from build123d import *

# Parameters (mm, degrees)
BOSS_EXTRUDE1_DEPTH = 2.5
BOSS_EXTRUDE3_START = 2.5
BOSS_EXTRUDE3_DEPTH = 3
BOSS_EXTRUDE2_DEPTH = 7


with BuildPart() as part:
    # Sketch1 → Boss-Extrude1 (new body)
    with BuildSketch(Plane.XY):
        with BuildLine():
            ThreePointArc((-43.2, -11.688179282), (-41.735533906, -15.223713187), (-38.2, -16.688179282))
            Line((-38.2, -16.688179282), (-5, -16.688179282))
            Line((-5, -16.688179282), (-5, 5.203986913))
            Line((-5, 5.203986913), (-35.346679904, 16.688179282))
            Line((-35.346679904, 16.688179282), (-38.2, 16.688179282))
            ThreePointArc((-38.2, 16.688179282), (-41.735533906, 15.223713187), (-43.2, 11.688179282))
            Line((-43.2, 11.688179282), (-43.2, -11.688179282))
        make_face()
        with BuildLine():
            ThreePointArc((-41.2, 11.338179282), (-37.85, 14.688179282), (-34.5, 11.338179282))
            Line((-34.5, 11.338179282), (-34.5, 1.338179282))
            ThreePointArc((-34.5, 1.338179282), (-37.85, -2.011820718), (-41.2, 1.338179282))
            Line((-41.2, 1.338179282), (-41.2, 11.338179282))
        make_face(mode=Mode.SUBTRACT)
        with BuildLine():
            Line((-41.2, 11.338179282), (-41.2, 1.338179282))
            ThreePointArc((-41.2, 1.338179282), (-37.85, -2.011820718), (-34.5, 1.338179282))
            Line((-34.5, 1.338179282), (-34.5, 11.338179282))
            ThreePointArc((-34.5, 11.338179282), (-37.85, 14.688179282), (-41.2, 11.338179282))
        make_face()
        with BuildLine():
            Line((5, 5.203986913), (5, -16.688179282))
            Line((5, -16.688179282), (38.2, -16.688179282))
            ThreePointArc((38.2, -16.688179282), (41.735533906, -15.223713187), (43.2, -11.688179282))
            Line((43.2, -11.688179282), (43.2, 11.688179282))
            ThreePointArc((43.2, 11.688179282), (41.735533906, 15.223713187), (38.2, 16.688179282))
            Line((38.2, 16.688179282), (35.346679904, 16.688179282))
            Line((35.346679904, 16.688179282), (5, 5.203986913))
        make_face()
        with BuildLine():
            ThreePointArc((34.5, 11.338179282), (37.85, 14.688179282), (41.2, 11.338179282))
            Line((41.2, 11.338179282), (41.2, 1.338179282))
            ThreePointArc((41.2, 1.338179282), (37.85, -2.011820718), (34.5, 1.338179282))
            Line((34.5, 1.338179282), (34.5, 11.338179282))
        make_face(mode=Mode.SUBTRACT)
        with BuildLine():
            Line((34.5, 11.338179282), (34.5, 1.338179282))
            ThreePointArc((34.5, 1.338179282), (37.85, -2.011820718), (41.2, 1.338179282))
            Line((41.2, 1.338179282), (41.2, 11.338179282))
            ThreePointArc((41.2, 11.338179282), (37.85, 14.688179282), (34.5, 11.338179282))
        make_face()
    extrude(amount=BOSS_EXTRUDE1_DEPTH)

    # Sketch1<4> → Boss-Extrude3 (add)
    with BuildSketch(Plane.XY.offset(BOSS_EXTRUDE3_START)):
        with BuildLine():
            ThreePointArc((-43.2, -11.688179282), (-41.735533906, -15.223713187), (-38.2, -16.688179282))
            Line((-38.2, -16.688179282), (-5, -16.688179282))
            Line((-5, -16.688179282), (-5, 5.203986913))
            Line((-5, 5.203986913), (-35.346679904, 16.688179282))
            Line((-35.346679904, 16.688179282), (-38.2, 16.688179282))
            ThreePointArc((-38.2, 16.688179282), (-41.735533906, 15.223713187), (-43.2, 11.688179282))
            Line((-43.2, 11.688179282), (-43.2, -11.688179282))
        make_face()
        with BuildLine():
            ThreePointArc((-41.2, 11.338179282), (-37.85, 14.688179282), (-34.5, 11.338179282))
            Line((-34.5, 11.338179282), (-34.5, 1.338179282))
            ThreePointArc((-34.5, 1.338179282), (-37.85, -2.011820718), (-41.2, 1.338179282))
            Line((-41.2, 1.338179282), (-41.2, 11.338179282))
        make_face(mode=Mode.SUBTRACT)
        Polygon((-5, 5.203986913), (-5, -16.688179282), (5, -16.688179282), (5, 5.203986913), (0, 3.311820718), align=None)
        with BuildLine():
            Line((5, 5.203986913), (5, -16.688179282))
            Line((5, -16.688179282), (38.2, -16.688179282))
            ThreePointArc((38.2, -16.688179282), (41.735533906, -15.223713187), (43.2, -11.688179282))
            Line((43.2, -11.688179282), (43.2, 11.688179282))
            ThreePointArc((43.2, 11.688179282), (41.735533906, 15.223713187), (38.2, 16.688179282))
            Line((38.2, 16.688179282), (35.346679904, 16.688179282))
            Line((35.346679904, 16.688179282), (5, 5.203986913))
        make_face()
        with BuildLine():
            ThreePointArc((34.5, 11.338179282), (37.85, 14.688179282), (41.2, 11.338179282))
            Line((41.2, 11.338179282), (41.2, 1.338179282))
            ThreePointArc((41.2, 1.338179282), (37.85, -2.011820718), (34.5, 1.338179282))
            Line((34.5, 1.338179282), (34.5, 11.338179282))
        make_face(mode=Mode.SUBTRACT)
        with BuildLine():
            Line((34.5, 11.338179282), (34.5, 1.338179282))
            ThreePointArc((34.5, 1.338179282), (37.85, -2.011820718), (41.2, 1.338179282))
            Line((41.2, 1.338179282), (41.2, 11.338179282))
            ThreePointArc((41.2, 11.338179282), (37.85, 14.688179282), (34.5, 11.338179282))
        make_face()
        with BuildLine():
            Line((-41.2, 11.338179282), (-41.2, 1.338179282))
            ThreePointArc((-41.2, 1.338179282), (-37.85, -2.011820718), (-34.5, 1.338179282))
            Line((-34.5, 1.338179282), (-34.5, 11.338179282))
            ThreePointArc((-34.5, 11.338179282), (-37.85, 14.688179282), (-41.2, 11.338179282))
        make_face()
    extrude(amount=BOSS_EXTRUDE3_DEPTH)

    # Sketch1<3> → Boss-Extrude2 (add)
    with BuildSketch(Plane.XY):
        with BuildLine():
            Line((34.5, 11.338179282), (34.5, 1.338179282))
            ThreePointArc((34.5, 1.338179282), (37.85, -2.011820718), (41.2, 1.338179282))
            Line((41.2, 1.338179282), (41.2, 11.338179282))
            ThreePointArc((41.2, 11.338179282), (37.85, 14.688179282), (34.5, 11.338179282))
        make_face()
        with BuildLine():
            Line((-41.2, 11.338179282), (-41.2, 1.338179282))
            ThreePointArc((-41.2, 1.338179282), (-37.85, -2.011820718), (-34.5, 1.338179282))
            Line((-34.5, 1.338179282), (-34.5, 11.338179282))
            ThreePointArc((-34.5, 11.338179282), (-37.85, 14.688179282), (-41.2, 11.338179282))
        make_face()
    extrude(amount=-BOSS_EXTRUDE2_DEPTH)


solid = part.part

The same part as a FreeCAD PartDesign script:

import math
import FreeCAD as App
import Part
import Sketcher
from FreeCAD import Vector

doc = App.newDocument("Part")
params = doc.addObject("Spreadsheet::Sheet", "Params")
for row, (alias, value) in enumerate([
    ("sketch1_radius", "5 mm"),
    ("sketch1_width", "33.2 mm"),
    ("pad1_length", "2.5 mm"),
    ("sketch2_radius", "5 mm"),
    ("sketch2_width", "76.4 mm"),
    ("pad2_length", "3 mm"),
    ("sketch3_height", "10 mm"),
    ("sketch3_radius", "3.35 mm"),
    ("pad3_length", "7 mm"),
], start=1):
    params.set(f"A{row}", alias)
    params.set(f"B{row}", "=" + value)
    params.setAlias(f"B{row}", alias)

body = doc.addObject("PartDesign::Body", "Body")
body.AllowCompound = True

sketch1 = doc.addObject("Sketcher::SketchObject", "Sketch")
body.addObject(sketch1)
sketch1.AttachmentSupport = (doc.XY_Plane, [""])
sketch1.MapMode = "FlatFace"
sketch1.addGeometry([
    Part.ArcOfCircle(Part.Circle(Vector(-38.2, -11.7, 0), Vector(0, 0, 1), 5), math.radians(-180), math.radians(-90)),
    Part.LineSegment(Vector(-38.2, -16.7, 0), Vector(-5, -16.7, 0)),
    Part.LineSegment(Vector(-5, -16.7, 0), Vector(-5, 5.2, 0)),
    Part.LineSegment(Vector(-5, 5.2, 0), Vector(-35.3, 16.7, 0)),
    Part.LineSegment(Vector(-35.3, 16.7, 0), Vector(-38.2, 16.7, 0)),
    Part.ArcOfCircle(Part.Circle(Vector(-38.2, 11.7, 0), Vector(0, 0, 1), 5), math.radians(90), math.radians(180)),
    Part.LineSegment(Vector(-43.2, 11.7, 0), Vector(-43.2, -11.7, 0)),
    Part.LineSegment(Vector(5, 5.2, 0), Vector(5, -16.7, 0)),
    Part.LineSegment(Vector(5, -16.7, 0), Vector(38.2, -16.7, 0)),
    Part.ArcOfCircle(Part.Circle(Vector(38.2, -11.7, 0), Vector(0, 0, 1), 5), math.radians(-90), math.radians(0)),
    Part.LineSegment(Vector(43.2, -11.7, 0), Vector(43.2, 11.7, 0)),
    Part.ArcOfCircle(Part.Circle(Vector(38.2, 11.7, 0), Vector(0, 0, 1), 5), math.radians(0), math.radians(90)),
    Part.LineSegment(Vector(38.2, 16.7, 0), Vector(35.3, 16.7, 0)),
    Part.LineSegment(Vector(35.3, 16.7, 0), Vector(5, 5.2, 0)),
], False)
sketch1.addConstraint([
    Sketcher.Constraint("Tangent", 0, 2, 1, 1),
    Sketcher.Constraint("Coincident", 1, 2, 2, 1),
    Sketcher.Constraint("Coincident", 2, 2, 3, 1),
    Sketcher.Constraint("Coincident", 3, 2, 4, 1),
    Sketcher.Constraint("Tangent", 4, 2, 5, 1),
    Sketcher.Constraint("Tangent", 5, 2, 6, 1),
    Sketcher.Constraint("Tangent", 6, 2, 0, 1),
    Sketcher.Constraint("Coincident", 7, 2, 8, 1),
    Sketcher.Constraint("Tangent", 8, 2, 9, 1),
    Sketcher.Constraint("Tangent", 9, 2, 10, 1),
    Sketcher.Constraint("Tangent", 10, 2, 11, 1),
    Sketcher.Constraint("Tangent", 11, 2, 12, 1),
    Sketcher.Constraint("Coincident", 12, 2, 13, 1),
    Sketcher.Constraint("Coincident", 13, 2, 7, 1),
    Sketcher.Constraint("Horizontal", 1),
    Sketcher.Constraint("Vertical", 2),
    Sketcher.Constraint("Horizontal", 4),
    Sketcher.Constraint("Vertical", 6),
    Sketcher.Constraint("Vertical", 7),
    Sketcher.Constraint("Horizontal", 8),
    Sketcher.Constraint("Vertical", 10),
    Sketcher.Constraint("Horizontal", 12),
    Sketcher.Constraint("Equal", 0, 5),
    Sketcher.Constraint("Equal", 5, 9),
    Sketcher.Constraint("Equal", 9, 11),
    Sketcher.Constraint("Symmetric", 5, 3, 9, 3, -1, 1),
    Sketcher.Constraint("Symmetric", 1, 2, 7, 2, -2),
    Sketcher.Constraint("Symmetric", 3, 2, 12, 2, -2),
    Sketcher.Constraint("Horizontal", 2, 2, 13, 2),
    Sketcher.Constraint("Radius", 0, 5.0),
    Sketcher.Constraint("DistanceX", 1, 1, 1, 2, 33.2),
    Sketcher.Constraint("DistanceX", 1, 2, -1, 1, 5.0),
    Sketcher.Constraint("DistanceX", 4, 2, 4, 1, 2.85332),
    Sketcher.Constraint("DistanceY", 6, 2, 6, 1, 23.376359),
    Sketcher.Constraint("DistanceY", 2, 1, 2, 2, 21.892166),
])
sketch1.setExpression("Constraints[29]", "Params.sketch1_radius")
sketch1.setExpression("Constraints[30]", "Params.sketch1_width")
pad1 = doc.addObject("PartDesign::Pad", "Pad")
body.addObject(pad1)
pad1.Profile = sketch1
pad1.setExpression("Length", "Params.pad1_length")

sketch2 = doc.addObject("Sketcher::SketchObject", "Sketch001")
body.addObject(sketch2)
sketch2.AttachmentSupport = (doc.XY_Plane, [""])
sketch2.MapMode = "FlatFace"
sketch2.AttachmentOffset = App.Placement(Vector(0, 0, 2.5), App.Rotation())
sketch2.addGeometry([
    Part.ArcOfCircle(Part.Circle(Vector(-38.2, -11.7, 0), Vector(0, 0, 1), 5), math.radians(-180), math.radians(-90)),
    Part.LineSegment(Vector(-38.2, -16.7, 0), Vector(38.2, -16.7, 0)),
    Part.ArcOfCircle(Part.Circle(Vector(38.2, -11.7, 0), Vector(0, 0, 1), 5), math.radians(-90), math.radians(0)),
    Part.LineSegment(Vector(43.2, -11.7, 0), Vector(43.2, 11.7, 0)),
    Part.ArcOfCircle(Part.Circle(Vector(38.2, 11.7, 0), Vector(0, 0, 1), 5), math.radians(0), math.radians(90)),
    Part.LineSegment(Vector(38.2, 16.7, 0), Vector(35.3, 16.7, 0)),
    Part.LineSegment(Vector(35.3, 16.7, 0), Vector(0, 3.3, 0)),
    Part.LineSegment(Vector(0, 3.3, 0), Vector(-35.3, 16.7, 0)),
    Part.LineSegment(Vector(-35.3, 16.7, 0), Vector(-38.2, 16.7, 0)),
    Part.ArcOfCircle(Part.Circle(Vector(-38.2, 11.7, 0), Vector(0, 0, 1), 5), math.radians(90), math.radians(180)),
    Part.LineSegment(Vector(-43.2, 11.7, 0), Vector(-43.2, -11.7, 0)),
], False)
sketch2.addConstraint([
    Sketcher.Constraint("Tangent", 0, 2, 1, 1),
    Sketcher.Constraint("Tangent", 1, 2, 2, 1),
    Sketcher.Constraint("Tangent", 2, 2, 3, 1),
    Sketcher.Constraint("Tangent", 3, 2, 4, 1),
    Sketcher.Constraint("Tangent", 4, 2, 5, 1),
    Sketcher.Constraint("Coincident", 5, 2, 6, 1),
    Sketcher.Constraint("Coincident", 6, 2, 7, 1),
    Sketcher.Constraint("Coincident", 7, 2, 8, 1),
    Sketcher.Constraint("Tangent", 8, 2, 9, 1),
    Sketcher.Constraint("Tangent", 9, 2, 10, 1),
    Sketcher.Constraint("Tangent", 10, 2, 0, 1),
    Sketcher.Constraint("Horizontal", 1),
    Sketcher.Constraint("Vertical", 3),
    Sketcher.Constraint("Horizontal", 5),
    Sketcher.Constraint("Horizontal", 8),
    Sketcher.Constraint("Vertical", 10),
    Sketcher.Constraint("Equal", 0, 2),
    Sketcher.Constraint("Equal", 2, 4),
    Sketcher.Constraint("Equal", 4, 9),
    Sketcher.Constraint("Symmetric", 0, 3, 4, 3, -1, 1),
    Sketcher.Constraint("Symmetric", 5, 2, 7, 2, -2),
    Sketcher.Constraint("PointOnObject", 6, 2, -2),
    Sketcher.Constraint("Radius", 0, 5.0),
    Sketcher.Constraint("DistanceX", 1, 1, 1, 2, 76.4),
    Sketcher.Constraint("DistanceY", 0, 3, 6, 2, 15.0),
    Sketcher.Constraint("DistanceX", 5, 2, 5, 1, 2.85332),
    Sketcher.Constraint("DistanceY", 3, 1, 3, 2, 23.376359),
])
sketch2.setExpression("Constraints[22]", "Params.sketch2_radius")
sketch2.setExpression("Constraints[23]", "Params.sketch2_width")
pad2 = doc.addObject("PartDesign::Pad", "Pad001")
body.addObject(pad2)
pad2.Profile = sketch2
pad2.setExpression("Length", "Params.pad2_length")

sketch3 = doc.addObject("Sketcher::SketchObject", "Sketch002")
body.addObject(sketch3)
sketch3.AttachmentSupport = (doc.XY_Plane, [""])
sketch3.MapMode = "FlatFace"
sketch3.addGeometry([
    Part.LineSegment(Vector(34.5, 11.3, 0), Vector(34.5, 1.3, 0)),
    Part.ArcOfCircle(Part.Circle(Vector(37.9, 1.3, 0), Vector(0, 0, 1), 3.4), math.radians(180), math.radians(360)),
    Part.LineSegment(Vector(41.2, 1.3, 0), Vector(41.2, 11.3, 0)),
    Part.ArcOfCircle(Part.Circle(Vector(37.9, 11.3, 0), Vector(0, 0, 1), 3.4), math.radians(0), math.radians(180)),
    Part.LineSegment(Vector(-41.2, 11.3, 0), Vector(-41.2, 1.3, 0)),
    Part.ArcOfCircle(Part.Circle(Vector(-37.9, 1.3, 0), Vector(0, 0, 1), 3.4), math.radians(180), math.radians(360)),
    Part.LineSegment(Vector(-34.5, 1.3, 0), Vector(-34.5, 11.3, 0)),
    Part.ArcOfCircle(Part.Circle(Vector(-37.9, 11.3, 0), Vector(0, 0, 1), 3.4), math.radians(0), math.radians(180)),
], False)
sketch3.addConstraint([
    Sketcher.Constraint("Tangent", 0, 2, 1, 1),
    Sketcher.Constraint("Tangent", 1, 2, 2, 1),
    Sketcher.Constraint("Tangent", 2, 2, 3, 1),
    Sketcher.Constraint("Tangent", 3, 2, 0, 1),
    Sketcher.Constraint("Tangent", 4, 2, 5, 1),
    Sketcher.Constraint("Tangent", 5, 2, 6, 1),
    Sketcher.Constraint("Tangent", 6, 2, 7, 1),
    Sketcher.Constraint("Tangent", 7, 2, 4, 1),
    Sketcher.Constraint("Vertical", 0),
    Sketcher.Constraint("Vertical", 2),
    Sketcher.Constraint("Vertical", 4),
    Sketcher.Constraint("Vertical", 6),
    Sketcher.Constraint("Equal", 3, 5),
    Sketcher.Constraint("Symmetric", 1, 3, 5, 3, -2),
    Sketcher.Constraint("Horizontal", 3, 3, 7, 3),
    Sketcher.Constraint("DistanceY", 0, 2, 0, 1, 10.0),
    Sketcher.Constraint("Radius", 1, 3.35),
    Sketcher.Constraint("DistanceX", 5, 2, 0, 2, 69.0),
    Sketcher.Constraint("DistanceY", -1, 1, 1, 3, 1.338179),
])
sketch3.setExpression("Constraints[15]", "Params.sketch3_height")
sketch3.setExpression("Constraints[16]", "Params.sketch3_radius")
pad3 = doc.addObject("PartDesign::Pad", "Pad002")
body.addObject(pad3)
pad3.Profile = sketch3
pad3.setExpression("Length", "Params.pad3_length")
pad3.Reversed = True

doc.recompute()
